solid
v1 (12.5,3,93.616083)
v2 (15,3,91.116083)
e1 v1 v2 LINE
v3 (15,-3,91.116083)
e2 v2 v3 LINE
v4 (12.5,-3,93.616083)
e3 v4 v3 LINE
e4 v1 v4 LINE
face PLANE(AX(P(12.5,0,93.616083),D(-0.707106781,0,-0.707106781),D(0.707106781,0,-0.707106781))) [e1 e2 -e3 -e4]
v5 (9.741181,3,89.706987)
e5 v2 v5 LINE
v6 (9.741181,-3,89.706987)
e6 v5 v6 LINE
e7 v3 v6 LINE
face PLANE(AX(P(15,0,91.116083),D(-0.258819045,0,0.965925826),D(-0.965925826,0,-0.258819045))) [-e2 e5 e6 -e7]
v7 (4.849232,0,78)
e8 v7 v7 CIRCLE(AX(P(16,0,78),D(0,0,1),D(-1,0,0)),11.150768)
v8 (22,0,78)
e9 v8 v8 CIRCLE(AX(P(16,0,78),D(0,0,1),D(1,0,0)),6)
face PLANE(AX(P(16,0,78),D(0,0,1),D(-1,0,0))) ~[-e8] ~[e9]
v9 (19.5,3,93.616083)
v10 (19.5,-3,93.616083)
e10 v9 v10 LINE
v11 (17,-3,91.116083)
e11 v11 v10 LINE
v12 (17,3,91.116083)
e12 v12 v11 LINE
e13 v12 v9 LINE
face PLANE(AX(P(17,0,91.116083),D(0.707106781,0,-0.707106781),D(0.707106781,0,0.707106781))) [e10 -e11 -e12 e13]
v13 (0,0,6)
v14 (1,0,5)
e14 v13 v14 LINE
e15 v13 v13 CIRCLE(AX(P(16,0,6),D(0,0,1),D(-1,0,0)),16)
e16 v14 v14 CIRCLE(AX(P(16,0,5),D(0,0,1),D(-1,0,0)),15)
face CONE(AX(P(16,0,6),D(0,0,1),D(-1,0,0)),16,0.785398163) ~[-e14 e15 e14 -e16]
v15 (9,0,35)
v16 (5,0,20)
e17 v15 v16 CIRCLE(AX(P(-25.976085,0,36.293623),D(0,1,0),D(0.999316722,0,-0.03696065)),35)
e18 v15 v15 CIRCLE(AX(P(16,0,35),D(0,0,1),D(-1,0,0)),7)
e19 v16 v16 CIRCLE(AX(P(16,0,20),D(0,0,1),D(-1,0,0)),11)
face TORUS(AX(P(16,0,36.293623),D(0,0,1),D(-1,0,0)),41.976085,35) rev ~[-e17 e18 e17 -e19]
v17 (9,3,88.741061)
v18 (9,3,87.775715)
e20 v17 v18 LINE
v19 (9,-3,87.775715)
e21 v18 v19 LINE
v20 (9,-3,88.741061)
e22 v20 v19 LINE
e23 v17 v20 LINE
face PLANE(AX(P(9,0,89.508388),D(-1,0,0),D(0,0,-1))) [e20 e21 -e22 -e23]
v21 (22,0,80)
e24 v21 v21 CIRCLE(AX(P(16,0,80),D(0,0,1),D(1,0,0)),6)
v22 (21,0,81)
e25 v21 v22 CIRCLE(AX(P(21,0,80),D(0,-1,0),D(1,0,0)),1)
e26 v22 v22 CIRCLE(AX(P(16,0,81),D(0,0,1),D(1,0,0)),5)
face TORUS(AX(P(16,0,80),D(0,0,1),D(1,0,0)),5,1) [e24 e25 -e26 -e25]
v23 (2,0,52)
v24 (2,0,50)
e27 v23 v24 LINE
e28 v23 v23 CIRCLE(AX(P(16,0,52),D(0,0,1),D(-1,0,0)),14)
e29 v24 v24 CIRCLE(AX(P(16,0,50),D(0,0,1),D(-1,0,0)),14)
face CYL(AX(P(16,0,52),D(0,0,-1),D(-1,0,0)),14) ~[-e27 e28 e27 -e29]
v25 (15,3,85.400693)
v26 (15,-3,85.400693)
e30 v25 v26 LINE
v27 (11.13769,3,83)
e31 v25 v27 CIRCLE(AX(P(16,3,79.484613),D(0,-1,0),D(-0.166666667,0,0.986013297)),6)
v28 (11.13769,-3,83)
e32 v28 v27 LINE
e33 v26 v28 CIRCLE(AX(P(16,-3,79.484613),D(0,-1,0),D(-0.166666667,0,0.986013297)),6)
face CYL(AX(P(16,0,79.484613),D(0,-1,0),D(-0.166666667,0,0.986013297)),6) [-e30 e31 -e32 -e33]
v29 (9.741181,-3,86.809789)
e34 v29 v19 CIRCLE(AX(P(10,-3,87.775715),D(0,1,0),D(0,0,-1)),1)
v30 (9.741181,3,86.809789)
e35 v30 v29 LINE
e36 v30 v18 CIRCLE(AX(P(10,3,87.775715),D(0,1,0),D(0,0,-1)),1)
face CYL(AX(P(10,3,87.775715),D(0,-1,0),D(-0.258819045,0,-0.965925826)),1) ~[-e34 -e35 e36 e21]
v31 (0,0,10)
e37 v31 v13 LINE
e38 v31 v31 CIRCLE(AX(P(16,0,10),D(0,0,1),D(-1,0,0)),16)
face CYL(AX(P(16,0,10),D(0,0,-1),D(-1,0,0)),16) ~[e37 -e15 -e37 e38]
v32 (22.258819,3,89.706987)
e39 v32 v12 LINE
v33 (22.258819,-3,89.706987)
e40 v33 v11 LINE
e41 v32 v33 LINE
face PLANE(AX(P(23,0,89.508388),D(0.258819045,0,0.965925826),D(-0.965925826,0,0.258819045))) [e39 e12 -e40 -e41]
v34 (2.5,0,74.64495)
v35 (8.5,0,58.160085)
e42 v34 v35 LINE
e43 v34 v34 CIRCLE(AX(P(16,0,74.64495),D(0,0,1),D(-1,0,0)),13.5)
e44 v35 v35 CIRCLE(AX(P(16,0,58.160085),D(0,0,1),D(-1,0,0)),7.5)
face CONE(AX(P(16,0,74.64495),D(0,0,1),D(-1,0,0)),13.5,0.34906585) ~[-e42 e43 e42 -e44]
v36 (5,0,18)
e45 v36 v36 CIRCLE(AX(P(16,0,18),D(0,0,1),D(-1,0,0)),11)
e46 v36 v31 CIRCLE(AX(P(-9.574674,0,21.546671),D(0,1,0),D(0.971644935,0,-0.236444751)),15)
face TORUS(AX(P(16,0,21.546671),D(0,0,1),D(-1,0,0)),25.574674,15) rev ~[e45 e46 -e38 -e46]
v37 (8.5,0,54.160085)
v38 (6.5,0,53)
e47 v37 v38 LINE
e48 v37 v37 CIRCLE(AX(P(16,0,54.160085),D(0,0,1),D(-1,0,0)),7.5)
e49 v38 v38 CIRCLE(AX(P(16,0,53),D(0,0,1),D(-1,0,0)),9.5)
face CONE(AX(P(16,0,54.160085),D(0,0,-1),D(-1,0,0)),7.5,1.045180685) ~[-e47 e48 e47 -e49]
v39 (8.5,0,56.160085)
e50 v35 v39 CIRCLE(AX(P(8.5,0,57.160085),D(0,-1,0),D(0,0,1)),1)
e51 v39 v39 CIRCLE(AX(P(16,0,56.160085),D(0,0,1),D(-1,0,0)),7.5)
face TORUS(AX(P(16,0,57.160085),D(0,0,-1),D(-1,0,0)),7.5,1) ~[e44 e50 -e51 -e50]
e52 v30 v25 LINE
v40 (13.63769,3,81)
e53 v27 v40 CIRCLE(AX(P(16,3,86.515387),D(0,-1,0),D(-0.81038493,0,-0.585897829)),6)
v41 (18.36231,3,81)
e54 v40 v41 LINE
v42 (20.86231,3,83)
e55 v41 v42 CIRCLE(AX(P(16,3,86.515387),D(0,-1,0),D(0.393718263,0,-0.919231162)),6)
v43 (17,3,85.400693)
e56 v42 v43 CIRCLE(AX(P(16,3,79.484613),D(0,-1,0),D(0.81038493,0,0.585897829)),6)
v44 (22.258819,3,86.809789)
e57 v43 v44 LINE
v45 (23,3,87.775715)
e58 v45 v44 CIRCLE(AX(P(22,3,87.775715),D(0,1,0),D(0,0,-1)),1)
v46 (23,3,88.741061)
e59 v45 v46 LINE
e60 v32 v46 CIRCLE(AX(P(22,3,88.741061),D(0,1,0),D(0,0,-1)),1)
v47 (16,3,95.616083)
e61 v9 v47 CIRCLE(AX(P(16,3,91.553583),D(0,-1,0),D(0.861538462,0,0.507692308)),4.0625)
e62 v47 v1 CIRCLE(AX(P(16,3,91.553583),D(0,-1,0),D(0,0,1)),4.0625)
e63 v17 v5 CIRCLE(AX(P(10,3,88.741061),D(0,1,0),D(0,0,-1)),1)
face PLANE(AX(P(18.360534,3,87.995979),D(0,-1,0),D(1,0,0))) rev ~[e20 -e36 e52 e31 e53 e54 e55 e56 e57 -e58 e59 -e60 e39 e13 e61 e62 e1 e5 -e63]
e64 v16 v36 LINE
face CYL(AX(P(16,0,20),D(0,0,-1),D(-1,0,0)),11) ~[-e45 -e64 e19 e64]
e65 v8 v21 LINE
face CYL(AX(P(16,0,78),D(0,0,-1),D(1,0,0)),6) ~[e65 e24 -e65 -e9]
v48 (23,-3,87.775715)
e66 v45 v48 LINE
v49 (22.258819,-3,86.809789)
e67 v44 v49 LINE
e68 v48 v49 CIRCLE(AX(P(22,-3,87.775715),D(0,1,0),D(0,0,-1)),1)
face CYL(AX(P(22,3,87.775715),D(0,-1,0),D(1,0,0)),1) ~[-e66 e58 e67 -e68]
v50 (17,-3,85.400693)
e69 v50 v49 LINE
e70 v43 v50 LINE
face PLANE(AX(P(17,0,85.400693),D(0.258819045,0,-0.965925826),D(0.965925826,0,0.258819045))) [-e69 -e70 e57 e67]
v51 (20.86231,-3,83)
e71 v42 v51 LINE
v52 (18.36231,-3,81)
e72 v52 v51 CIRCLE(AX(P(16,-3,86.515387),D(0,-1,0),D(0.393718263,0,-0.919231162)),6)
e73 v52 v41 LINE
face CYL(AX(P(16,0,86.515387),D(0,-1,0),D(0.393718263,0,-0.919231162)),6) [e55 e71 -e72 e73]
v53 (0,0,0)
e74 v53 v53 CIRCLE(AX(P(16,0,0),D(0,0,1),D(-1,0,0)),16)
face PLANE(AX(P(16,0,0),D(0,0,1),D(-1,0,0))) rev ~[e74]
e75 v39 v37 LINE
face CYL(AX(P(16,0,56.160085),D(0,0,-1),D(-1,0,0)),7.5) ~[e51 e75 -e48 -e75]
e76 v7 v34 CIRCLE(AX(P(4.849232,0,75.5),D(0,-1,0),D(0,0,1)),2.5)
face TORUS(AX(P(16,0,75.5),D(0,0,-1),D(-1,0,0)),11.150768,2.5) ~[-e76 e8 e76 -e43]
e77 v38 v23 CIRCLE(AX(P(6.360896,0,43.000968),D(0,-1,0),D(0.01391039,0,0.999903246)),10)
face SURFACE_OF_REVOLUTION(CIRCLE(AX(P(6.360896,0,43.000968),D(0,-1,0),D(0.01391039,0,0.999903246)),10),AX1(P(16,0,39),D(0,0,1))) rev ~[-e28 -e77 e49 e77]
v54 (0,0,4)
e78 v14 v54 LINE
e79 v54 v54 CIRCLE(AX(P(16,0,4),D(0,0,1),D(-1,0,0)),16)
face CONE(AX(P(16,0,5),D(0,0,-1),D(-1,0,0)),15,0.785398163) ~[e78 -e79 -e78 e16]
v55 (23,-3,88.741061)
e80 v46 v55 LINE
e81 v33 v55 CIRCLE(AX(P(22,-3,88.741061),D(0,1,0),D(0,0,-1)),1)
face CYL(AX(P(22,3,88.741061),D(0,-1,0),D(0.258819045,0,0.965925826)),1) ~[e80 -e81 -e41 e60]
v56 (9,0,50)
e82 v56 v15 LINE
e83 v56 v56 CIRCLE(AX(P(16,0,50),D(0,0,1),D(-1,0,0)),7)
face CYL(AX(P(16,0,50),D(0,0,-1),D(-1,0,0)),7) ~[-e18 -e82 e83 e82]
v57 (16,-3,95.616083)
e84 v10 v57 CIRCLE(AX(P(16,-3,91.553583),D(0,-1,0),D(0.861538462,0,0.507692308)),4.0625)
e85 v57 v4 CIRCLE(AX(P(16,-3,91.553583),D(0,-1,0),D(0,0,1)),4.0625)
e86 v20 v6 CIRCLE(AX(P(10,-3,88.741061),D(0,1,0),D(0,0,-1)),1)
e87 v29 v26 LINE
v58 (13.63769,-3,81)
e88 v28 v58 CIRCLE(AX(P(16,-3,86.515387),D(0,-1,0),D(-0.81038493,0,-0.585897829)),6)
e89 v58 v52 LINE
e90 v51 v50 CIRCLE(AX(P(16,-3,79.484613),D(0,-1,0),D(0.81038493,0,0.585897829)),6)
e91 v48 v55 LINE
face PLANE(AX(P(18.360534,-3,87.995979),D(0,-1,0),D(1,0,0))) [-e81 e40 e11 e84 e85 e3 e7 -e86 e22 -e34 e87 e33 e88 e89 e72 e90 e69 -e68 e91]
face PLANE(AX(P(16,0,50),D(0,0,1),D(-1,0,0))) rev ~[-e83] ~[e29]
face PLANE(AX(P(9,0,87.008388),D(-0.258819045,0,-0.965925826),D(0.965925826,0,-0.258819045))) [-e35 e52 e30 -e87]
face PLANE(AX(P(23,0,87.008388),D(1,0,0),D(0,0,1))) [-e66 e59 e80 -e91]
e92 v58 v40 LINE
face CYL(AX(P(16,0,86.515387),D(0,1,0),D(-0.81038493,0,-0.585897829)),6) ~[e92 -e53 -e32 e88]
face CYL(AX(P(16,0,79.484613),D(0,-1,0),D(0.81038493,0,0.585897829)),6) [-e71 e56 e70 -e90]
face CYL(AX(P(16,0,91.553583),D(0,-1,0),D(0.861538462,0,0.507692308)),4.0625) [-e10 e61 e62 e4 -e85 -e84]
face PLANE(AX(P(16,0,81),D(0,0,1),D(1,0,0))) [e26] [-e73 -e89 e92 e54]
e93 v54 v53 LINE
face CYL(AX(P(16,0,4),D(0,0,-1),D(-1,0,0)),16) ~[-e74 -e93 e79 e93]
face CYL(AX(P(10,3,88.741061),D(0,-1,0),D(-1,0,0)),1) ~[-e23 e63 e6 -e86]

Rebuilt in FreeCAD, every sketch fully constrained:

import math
import FreeCAD as App
import Part
import Sketcher
from FreeCAD import Vector
Q = App.Units.Quantity


def edges_at(feature, points):
    """Names of the edges that pass closest to the given points."""
    edges = feature.Shape.Edges
    near = lambda p: min(range(len(edges)), key=lambda i: edges[i].distToShape(Part.Vertex(*p))[0])
    return sorted({f"Edge{near(p) + 1}" for p in points})

doc = App.newDocument("Part")
body = doc.addObject("PartDesign::Body", "Body")

sketch1 = doc.addObject("Sketcher::SketchObject", "Sketch")
body.addObject(sketch1)
sketch1.AttachmentSupport = (doc.XZ_Plane, [""])
sketch1.MapMode = "FlatFace"
sketch1.addGeometry([
    Part.LineSegment(Vector(0, 4, 0), Vector(0, 0, 0)),
    Part.LineSegment(Vector(0, 0, 0), Vector(16, 0, 0)),
    Part.LineSegment(Vector(16, 0, 0), Vector(16, 78, 0)),
    Part.LineSegment(Vector(16, 78, 0), Vector(4.8, 78, 0)),
    Part.ArcOfCircle(Part.Circle(Vector(4.8, 75.5, 0), Vector(0, 0, 1), 2.5), math.radians(90), math.radians(200)),
    Part.LineSegment(Vector(2.5, 74.6, 0), Vector(8.5, 58.2, 0)),
    Part.ArcOfCircle(Part.Circle(Vector(8.5, 57.2, 0), Vector(0, 0, 1), 1), math.radians(90), math.radians(270)),
    Part.LineSegment(Vector(8.5, 56.2, 0), Vector(8.5, 54.2, 0)),
    Part.LineSegment(Vector(8.5, 54.2, 0), Vector(6.5, 53, 0)),
    Part.ArcOfCircle(Part.Circle(Vector(6.4, 43, 0), Vector(0, 0, 1), 10), math.radians(89), math.radians(116)),
    Part.LineSegment(Vector(2, 52, 0), Vector(2, 50, 0)),
    Part.LineSegment(Vector(2, 50, 0), Vector(9, 50, 0)),
    Part.LineSegment(Vector(9, 50, 0), Vector(9, 35, 0)),
    Part.ArcOfCircle(Part.Circle(Vector(-26, 36.3, 0), Vector(0, 0, 1), 35), math.radians(-28), math.radians(-2)),
    Part.LineSegment(Vector(5, 20, 0), Vector(5, 18, 0)),
    Part.ArcOfCircle(Part.Circle(Vector(-9.6, 21.5, 0), Vector(0, 0, 1), 15), math.radians(-50), math.radians(-14)),
    Part.LineSegment(Vector(0, 10, 0), Vector(0, 6, 0)),
    Part.LineSegment(Vector(0, 6, 0), Vector(1, 5, 0)),
    Part.LineSegment(Vector(1, 5, 0), Vector(0, 4, 0)),
], False)
sketch1.addGeometry(Part.LineSegment(Vector(16, 0, 0), Vector(16, 78, 0)), True)
sketch1.addConstraint([
    Sketcher.Constraint("Coincident", 0, 2, 1, 1),
    Sketcher.Constraint("Coincident", 1, 2, 2, 1),
    Sketcher.Constraint("Coincident", 2, 2, 3, 1),
    Sketcher.Constraint("Tangent", 3, 2, 4, 1),
    Sketcher.Constraint("Tangent", 4, 2, 5, 1),
    Sketcher.Constraint("Coincident", 5, 2, 6, 1),
    Sketcher.Constraint("Coincident", 6, 2, 7, 1),
    Sketcher.Constraint("Coincident", 7, 2, 8, 1),
    Sketcher.Constraint("Coincident", 8, 2, 9, 1),
    Sketcher.Constraint("Coincident", 9, 2, 10, 1),
    Sketcher.Constraint("Coincident", 10, 2, 11, 1),
    Sketcher.Constraint("Coincident", 11, 2, 12, 1),
    Sketcher.Constraint("Coincident", 12, 2, 13, 2),
    Sketcher.Constraint("Coincident", 13, 1, 14, 1),
    Sketcher.Constraint("Coincident", 14, 2, 15, 2),
    Sketcher.Constraint("Coincident", 15, 1, 16, 1),
    Sketcher.Constraint("Coincident", 16, 2, 17, 1),
    Sketcher.Constraint("Coincident", 17, 2, 18, 1),
    Sketcher.Constraint("Coincident", 18, 2, 0, 1),
    Sketcher.Constraint("Vertical", 0),
    Sketcher.Constraint("Horizontal", 1),
    Sketcher.Constraint("Vertical", 2),
    Sketcher.Constraint("Horizontal", 3),
    Sketcher.Constraint("Vertical", 7),
    Sketcher.Constraint("Vertical", 10),
    Sketcher.Constraint("Horizontal", 11),
    Sketcher.Constraint("Vertical", 12),
    Sketcher.Constraint("Vertical", 14),
    Sketcher.Constraint("Vertical", 16),
    Sketcher.Constraint("Vertical", 19),
    Sketcher.Constraint("Coincident", 0, 2, -1, 1),
    Sketcher.Constraint("Coincident", 19, 1, 1, 2),
    Sketcher.Constraint("PointOnObject", 15, 1, -2),
    Sketcher.Constraint("Perpendicular", 17, 18),
    Sketcher.Constraint("Horizontal", 3, 2, 19, 2),
    Sketcher.Constraint("Vertical", 6, 3, 5, 2),
    Sketcher.Constraint("Vertical", 5, 2, 6, 2),
    Sketcher.Constraint("Equal", 7, 10),
    Sketcher.Constraint("Equal", 10, 14),
    Sketcher.Constraint("Equal", 0, 16),
    Sketcher.Constraint("Equal", 17, 18),
    Sketcher.Constraint("Radius", 6, Q("1 mm")),
    Sketcher.Constraint("Radius", 9, Q("10 mm")),
    Sketcher.Constraint("Radius", 13, Q("35 mm")),
    Sketcher.Constraint("Radius", 15, Q("15 mm")),
    Sketcher.Constraint("Radius", 4, Q("2.5 mm")),
    Sketcher.Constraint("DistanceX", 1, 1, 1, 2, Q("16 mm")),
    Sketcher.Constraint("DistanceX", 11, 1, 11, 2, Q("7 mm")),
    Sketcher.Constraint("DistanceY", 0, 2, 0, 1, Q("4 mm")),
    Sketcher.Constraint("DistanceY", 2, 1, 2, 2, Q("78 mm")),
    Sketcher.Constraint("DistanceY", 7, 2, 7, 1, Q("2 mm")),
    Sketcher.Constraint("DistanceY", 12, 2, 12, 1, Q("15 mm")),
    Sketcher.Constraint("Angle", 5, Q("-70 deg")),
    Sketcher.Constraint("DistanceY", -1, 1, 8, 2, Q("53 mm")),
    Sketcher.Constraint("DistanceX", -1, 1, 9, 2, Q("2 mm")),
    Sketcher.Constraint("DistanceY", -1, 1, 9, 2, Q("52 mm")),
    Sketcher.Constraint("DistanceX", -1, 1, 13, 1, Q("5 mm")),
    Sketcher.Constraint("DistanceY", -1, 1, 13, 1, Q("20 mm")),
    Sketcher.Constraint("DistanceY", -1, 1, 15, 1, Q("10 mm")),
    Sketcher.Constraint("DistanceX", 4, 2, 6, 3, Q("6 mm")),
    Sketcher.Constraint("DistanceX", 8, 2, 7, 2, Q("2 mm")),
    Sketcher.Constraint("DistanceX", -1, 1, 6, 3, Q("8.5 mm")),
])
revolution = doc.addObject("PartDesign::Revolution", "Revolution")
body.addObject(revolution)
revolution.Profile = sketch1
revolution.ReferenceAxis = (sketch1, ["Axis0"])
revolution.Angle = 360

sketch2 = doc.addObject("Sketcher::SketchObject", "Sketch001")
body.addObject(sketch2)
sketch2.AttachmentSupport = (doc.XY_Plane, [""])
sketch2.MapMode = "FlatFace"
sketch2.AttachmentOffset = App.Placement(Vector(0, 0, 78), App.Rotation())
sketch2.addGeometry(Part.Circle(Vector(16, 0, 0), Vector(0, 0, 1), 6), False)
sketch2.addConstraint([
    Sketcher.Constraint("PointOnObject", 0, 3, -1),
    Sketcher.Constraint("Diameter", 0, Q("12 mm")),
    Sketcher.Constraint("DistanceX", -1, 1, 0, 3, Q("16 mm")),
])
pad1 = doc.addObject("PartDesign::Pad", "Pad")
body.addObject(pad1)
pad1.Profile = sketch2
pad1.Length = 3
doc.recompute()

fillet = doc.addObject("PartDesign::Fillet", "Fillet")
body.addObject(fillet)
fillet.Base = (pad1, edges_at(pad1, [(10, 0, 81)]))
fillet.Radius = 1

sketch3 = doc.addObject("Sketcher::SketchObject", "Sketch002")
body.addObject(sketch3)
sketch3.AttachmentSupport = (doc.XZ_Plane, [""])
sketch3.MapMode = "FlatFace"
sketch3.addGeometry([
    Part.ArcOfCircle(Part.Circle(Vector(16, 86.5, 0), Vector(0, 0, 1), 6), math.radians(-67), math.radians(-36)),
    Part.ArcOfCircle(Part.Circle(Vector(16, 79.5, 0), Vector(0, 0, 1), 6), math.radians(36), math.radians(80)),
    Part.LineSegment(Vector(17, 85.4, 0), Vector(23, 87, 0)),
    Part.LineSegment(Vector(23, 87, 0), Vector(23, 89.5, 0)),
    Part.LineSegment(Vector(23, 89.5, 0), Vector(17, 91.1, 0)),
    Part.LineSegment(Vector(17, 91.1, 0), Vector(19.5, 93.6, 0)),
    Part.ArcOfCircle(Part.Circle(Vector(16, 91.6, 0), Vector(0, 0, 1), 4.1), math.radians(31), math.radians(90)),
    Part.ArcOfCircle(Part.Circle(Vector(16, 91.6, 0), Vector(0, 0, 1), 4.1), math.radians(90), math.radians(149)),
    Part.LineSegment(Vector(12.5, 93.6, 0), Vector(15, 91.1, 0)),
    Part.LineSegment(Vector(15, 91.1, 0), Vector(9, 89.5, 0)),
    Part.LineSegment(Vector(9, 89.5, 0), Vector(9, 87, 0)),
    Part.LineSegment(Vector(9, 87, 0), Vector(15, 85.4, 0)),
    Part.ArcOfCircle(Part.Circle(Vector(16, 79.5, 0), Vector(0, 0, 1), 6), math.radians(100), math.radians(144)),
    Part.ArcOfCircle(Part.Circle(Vector(16, 86.5, 0), Vector(0, 0, 1), 6), math.radians(-144), math.radians(-113)),
    Part.LineSegment(Vector(13.6, 81, 0), Vector(18.4, 81, 0)),
], False)
sketch3.addConstraint([
    Sketcher.Constraint("Coincident", 0, 2, 1, 1),
    Sketcher.Constraint("Coincident", 1, 2, 2, 1),
    Sketcher.Constraint("Coincident", 2, 2, 3, 1),
    Sketcher.Constraint("Coincident", 3, 2, 4, 1),
    Sketcher.Constraint("Coincident", 4, 2, 5, 1),
    Sketcher.Constraint("Coincident", 5, 2, 6, 1),
    Sketcher.Constraint("Tangent", 6, 2, 7, 1),
    Sketcher.Constraint("Coincident", 7, 2, 8, 1),
    Sketcher.Constraint("Coincident", 8, 2, 9, 1),
    Sketcher.Constraint("Coincident", 9, 2, 10, 1),
    Sketcher.Constraint("Coincident", 10, 2, 11, 1),
    Sketcher.Constraint("Coincident", 11, 2, 12, 1),
    Sketcher.Constraint("Coincident", 12, 2, 13, 1),
    Sketcher.Constraint("Coincident", 13, 2, 14, 1),
    Sketcher.Constraint("Coincident", 14, 2, 0, 1),
    Sketcher.Constraint("Vertical", 3),
    Sketcher.Constraint("Vertical", 10),
    Sketcher.Constraint("Horizontal", 14),
    Sketcher.Constraint("Coincident", 12, 3, 1, 3),
    Sketcher.Constraint("Coincident", 13, 3, 0, 3),
    Sketcher.Constraint("Equal", 0, 1),
    Sketcher.Constraint("Equal", 6, 7),
    Sketcher.Constraint("Equal", 1, 12),
    Sketcher.Constraint("Equal", 12, 13),
    Sketcher.Constraint("Perpendicular", 5, 8),
    Sketcher.Constraint("Parallel", 2, 9),
    Sketcher.Constraint("Parallel", 4, 11),
    Sketcher.Constraint("Horizontal", 5, 2, 7, 2),
    Sketcher.Constraint("Horizontal", 4, 2, 8, 2),
    Sketcher.Constraint("Horizontal", 3, 2, 9, 2),
    Sketcher.Constraint("Horizontal", 2, 2, 10, 2),
    Sketcher.Constraint("Horizontal", 1, 2, 11, 2),
    Sketcher.Constraint("Horizontal", 0, 2, 12, 2),
    Sketcher.Constraint("Vertical", 1, 3, 6, 3),
    Sketcher.Constraint("Vertical", 1, 2, 4, 2),
    Sketcher.Constraint("Vertical", 13, 3, 6, 2),
    Sketcher.Constraint("Vertical", 8, 2, 11, 2),
    Sketcher.Constraint("Radius", 0, Q("6 mm")),
    Sketcher.Constraint("Angle", 2, Q("15 deg")),
    Sketcher.Constraint("DistanceY", 3, 1, 3, 2, Q("2.5 mm")),
    Sketcher.Constraint("DistanceX", -1, 1, 0, 3, Q("16 mm")),
    Sketcher.Constraint("DistanceY", -1, 1, 0, 2, Q("83 mm")),
    Sketcher.Constraint("DistanceX", -1, 1, 1, 2, Q("17 mm")),
    Sketcher.Constraint("DistanceX", -1, 1, 2, 2, Q("23 mm")),
    Sketcher.Constraint("DistanceY", -1, 1, 13, 2, Q("81 mm")),
    Sketcher.Constraint("DistanceY", 5, 2, 6, 2, Q("2 mm")),
    Sketcher.Constraint("DistanceX", 7, 2, 5, 2, Q("7 mm")),
    Sketcher.Constraint("DistanceX", 12, 2, 13, 2, Q("2.5 mm")),
])
pad2 = doc.addObject("PartDesign::Pad", "Pad001")
body.addObject(pad2)
pad2.Profile = sketch3
pad2.Type = "TwoLengths"
pad2.Length = 3
pad2.Length2 = 3
doc.recompute()

fillet2 = doc.addObject("PartDesign::Fillet", "Fillet001")
body.addObject(fillet2)
fillet2.Base = (pad2, edges_at(pad2, [
    (23, 0, 89.508),
    (23, 0, 87.008),
    (9, 0, 89.508),
    (9, 0, 87.008),
]))
fillet2.Radius = 1

doc.recompute()
